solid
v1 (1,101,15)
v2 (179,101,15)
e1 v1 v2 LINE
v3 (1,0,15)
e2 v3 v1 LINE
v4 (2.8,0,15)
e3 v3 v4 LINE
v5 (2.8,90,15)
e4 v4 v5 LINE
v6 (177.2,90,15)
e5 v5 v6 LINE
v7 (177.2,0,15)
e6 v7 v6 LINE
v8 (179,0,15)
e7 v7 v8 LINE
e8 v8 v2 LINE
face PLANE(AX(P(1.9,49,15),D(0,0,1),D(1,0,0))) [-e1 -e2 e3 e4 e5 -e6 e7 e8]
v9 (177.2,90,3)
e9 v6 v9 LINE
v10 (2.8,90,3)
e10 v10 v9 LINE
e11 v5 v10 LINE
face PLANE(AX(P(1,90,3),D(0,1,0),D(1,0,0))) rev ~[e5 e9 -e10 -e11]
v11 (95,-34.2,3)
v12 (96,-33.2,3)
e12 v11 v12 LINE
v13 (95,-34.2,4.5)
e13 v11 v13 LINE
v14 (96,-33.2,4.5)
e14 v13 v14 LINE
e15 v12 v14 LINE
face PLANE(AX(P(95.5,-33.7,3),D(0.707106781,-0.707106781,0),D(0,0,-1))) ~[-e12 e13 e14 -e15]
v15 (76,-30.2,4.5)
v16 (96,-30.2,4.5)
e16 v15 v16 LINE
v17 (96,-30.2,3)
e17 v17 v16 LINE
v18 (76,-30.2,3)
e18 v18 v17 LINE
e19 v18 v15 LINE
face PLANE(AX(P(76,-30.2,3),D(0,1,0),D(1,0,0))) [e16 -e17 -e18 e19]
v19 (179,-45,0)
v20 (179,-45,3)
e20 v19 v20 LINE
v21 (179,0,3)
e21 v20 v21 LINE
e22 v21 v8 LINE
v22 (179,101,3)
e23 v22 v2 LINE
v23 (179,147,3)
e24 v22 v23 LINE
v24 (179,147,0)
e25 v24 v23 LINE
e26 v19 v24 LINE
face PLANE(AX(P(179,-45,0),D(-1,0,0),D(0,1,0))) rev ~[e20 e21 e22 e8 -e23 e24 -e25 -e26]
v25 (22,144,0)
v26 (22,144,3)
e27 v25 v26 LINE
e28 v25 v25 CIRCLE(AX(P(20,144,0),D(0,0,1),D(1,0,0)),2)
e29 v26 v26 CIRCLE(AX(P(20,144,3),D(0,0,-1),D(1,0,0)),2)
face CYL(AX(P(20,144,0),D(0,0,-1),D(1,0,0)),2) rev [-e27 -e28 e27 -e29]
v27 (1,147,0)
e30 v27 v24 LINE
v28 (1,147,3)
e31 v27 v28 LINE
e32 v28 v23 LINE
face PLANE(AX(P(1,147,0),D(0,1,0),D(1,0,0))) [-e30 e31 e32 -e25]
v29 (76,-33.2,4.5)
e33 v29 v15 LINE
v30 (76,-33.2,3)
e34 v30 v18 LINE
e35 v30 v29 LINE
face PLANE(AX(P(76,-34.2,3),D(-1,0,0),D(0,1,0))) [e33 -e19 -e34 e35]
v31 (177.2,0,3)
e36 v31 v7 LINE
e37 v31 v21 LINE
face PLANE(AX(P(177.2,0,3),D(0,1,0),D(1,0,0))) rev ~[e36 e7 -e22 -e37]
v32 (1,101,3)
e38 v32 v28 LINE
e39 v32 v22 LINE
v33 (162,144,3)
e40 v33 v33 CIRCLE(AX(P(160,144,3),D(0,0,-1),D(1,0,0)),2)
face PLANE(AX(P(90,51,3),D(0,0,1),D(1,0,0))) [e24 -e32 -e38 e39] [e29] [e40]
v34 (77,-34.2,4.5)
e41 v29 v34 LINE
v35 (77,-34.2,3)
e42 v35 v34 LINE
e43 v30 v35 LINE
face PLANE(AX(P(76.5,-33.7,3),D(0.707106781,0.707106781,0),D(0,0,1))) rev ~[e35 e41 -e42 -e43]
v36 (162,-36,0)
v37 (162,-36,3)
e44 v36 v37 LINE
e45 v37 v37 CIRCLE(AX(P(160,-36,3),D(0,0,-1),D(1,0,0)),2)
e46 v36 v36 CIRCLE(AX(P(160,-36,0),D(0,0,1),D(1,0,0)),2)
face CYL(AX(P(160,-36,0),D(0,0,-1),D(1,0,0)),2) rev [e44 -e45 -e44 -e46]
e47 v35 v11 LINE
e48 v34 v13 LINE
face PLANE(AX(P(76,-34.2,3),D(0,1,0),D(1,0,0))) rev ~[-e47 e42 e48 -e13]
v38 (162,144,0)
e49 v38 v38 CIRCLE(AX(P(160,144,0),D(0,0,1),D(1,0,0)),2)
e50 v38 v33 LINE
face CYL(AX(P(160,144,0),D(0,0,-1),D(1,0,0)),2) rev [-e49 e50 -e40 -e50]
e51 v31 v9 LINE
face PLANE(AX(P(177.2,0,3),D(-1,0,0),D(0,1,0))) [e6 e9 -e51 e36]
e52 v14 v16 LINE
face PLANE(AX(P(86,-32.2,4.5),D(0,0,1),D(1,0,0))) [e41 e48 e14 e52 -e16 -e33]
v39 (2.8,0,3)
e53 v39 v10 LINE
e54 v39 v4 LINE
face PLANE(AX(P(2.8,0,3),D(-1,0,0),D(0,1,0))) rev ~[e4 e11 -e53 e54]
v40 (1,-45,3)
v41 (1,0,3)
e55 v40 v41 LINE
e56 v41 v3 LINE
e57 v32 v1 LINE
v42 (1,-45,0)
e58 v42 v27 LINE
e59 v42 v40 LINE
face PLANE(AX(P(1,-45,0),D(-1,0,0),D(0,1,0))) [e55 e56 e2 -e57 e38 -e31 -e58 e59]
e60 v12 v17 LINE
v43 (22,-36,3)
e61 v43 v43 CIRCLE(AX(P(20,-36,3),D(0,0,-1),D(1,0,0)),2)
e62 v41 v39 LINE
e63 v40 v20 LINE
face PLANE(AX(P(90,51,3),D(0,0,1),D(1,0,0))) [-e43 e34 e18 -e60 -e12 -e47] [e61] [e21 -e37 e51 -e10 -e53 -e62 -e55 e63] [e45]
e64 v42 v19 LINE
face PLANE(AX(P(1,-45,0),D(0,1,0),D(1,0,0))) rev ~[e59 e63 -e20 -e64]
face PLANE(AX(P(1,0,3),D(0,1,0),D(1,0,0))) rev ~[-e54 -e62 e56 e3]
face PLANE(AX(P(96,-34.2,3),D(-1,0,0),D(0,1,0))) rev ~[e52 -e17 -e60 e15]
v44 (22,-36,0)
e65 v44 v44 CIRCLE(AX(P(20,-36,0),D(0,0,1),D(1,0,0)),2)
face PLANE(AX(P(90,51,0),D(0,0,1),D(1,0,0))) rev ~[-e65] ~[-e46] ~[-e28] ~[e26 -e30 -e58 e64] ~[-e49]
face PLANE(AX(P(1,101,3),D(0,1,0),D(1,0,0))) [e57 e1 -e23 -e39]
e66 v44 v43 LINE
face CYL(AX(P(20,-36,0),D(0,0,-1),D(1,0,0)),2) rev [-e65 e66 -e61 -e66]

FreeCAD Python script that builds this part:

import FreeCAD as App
import Part
import Sketcher

V = App.Vector


def edges_at(feature, points):
    """Names of the edges that pass closest to the given points."""
    edges = feature.Shape.Edges
    near = lambda p: min(range(len(edges)), key=lambda i: edges[i].distToShape(Part.Vertex(*p))[0])
    return sorted({f"Edge{near(p) + 1}" for p in points})

doc = App.newDocument("Part")
params = doc.addObject("Spreadsheet::Sheet", "Params")
for row, (alias, value) in enumerate([
    ("sketch1_diameter", "4 mm"),
    ("pad1_length", "10 mm"),
    ("sketch2_diameter", "4 mm"),
    ("pad2_length", "10 mm"),
    ("sketch3_diameter", "4 mm"),
    ("pad3_length", "10 mm"),
    ("sketch4_diameter", "4 mm"),
    ("pad4_length", "10 mm"),
    ("sketch5_width", "20 mm"),
    ("sketch5_height", "4 mm"),
    ("pad5_length", "1.5 mm"),
    ("chamfer_size", "1 mm"),
    ("sketch6_width", "178 mm"),
    ("sketch6_height", "11 mm"),
    ("pad6_length", "12 mm"),
    ("sketch7_height", "98 mm"),
    ("sketch7_width", "1.8 mm"),
    ("pad7_length", "12 mm"),
    ("sketch8_height", "98 mm"),
    ("sketch8_width", "1.8 mm"),
    ("pad8_length", "12 mm"),
    ("sketch9_width", "178 mm"),
    ("sketch9_height", "192 mm"),
    ("pad9_length", "3 mm"),
], start=1):
    params.set(f"A{row}", alias)
    params.set(f"B{row}", "=" + value)
    params.setAlias(f"B{row}", alias)

body = doc.addObject("PartDesign::Body", "Body")

sketch1 = body.newObject("Sketcher::SketchObject", "Sketch")
sketch1.AttachmentSupport = (doc.getObject("XY_Plane"), [""])
sketch1.MapMode = "FlatFace"
sketch1.addGeometry(Part.Circle(V(20, 144, 0), V(0, 0, 1), 2), False)
sketch1.addConstraint([
    Sketcher.Constraint("Diameter", 0, 4.0),
    Sketcher.Constraint("DistanceX", -1, 1, 0, 3, 20.0),
    Sketcher.Constraint("DistanceY", -1, 1, 0, 3, 144.0),
])
sketch1.setExpression("Constraints[0]", "Params.sketch1_diameter")
pad1 = body.newObject("PartDesign::Pad", "Pad")
pad1.Profile = sketch1
pad1.setExpression("Length", "Params.pad1_length")
body2 = doc.addObject("PartDesign::Body", "Body001")

sketch2 = body2.newObject("Sketcher::SketchObject", "Sketch001")
sketch2.AttachmentSupport = (doc.getObject("XY_Plane001"), [""])
sketch2.MapMode = "FlatFace"
sketch2.addGeometry(Part.Circle(V(160, -36, 0), V(0, 0, 1), 2), False)
sketch2.addConstraint([
    Sketcher.Constraint("Diameter", 0, 4.0),
    Sketcher.Constraint("DistanceX", -1, 1, 0, 3, 160.0),
    Sketcher.Constraint("DistanceY", 0, 3, -1, 1, 36.0),
])
sketch2.setExpression("Constraints[0]", "Params.sketch2_diameter")
pad2 = body2.newObject("PartDesign::Pad", "Pad001")
pad2.Profile = sketch2
pad2.setExpression("Length", "Params.pad2_length")
body3 = doc.addObject("PartDesign::Body", "Body002")

sketch3 = body3.newObject("Sketcher::SketchObject", "Sketch002")
sketch3.AttachmentSupport = (doc.getObject("XY_Plane002"), [""])
sketch3.MapMode = "FlatFace"
sketch3.addGeometry(Part.Circle(V(20, -36, 0), V(0, 0, 1), 2), False)
sketch3.addConstraint([
    Sketcher.Constraint("Diameter", 0, 4.0),
    Sketcher.Constraint("DistanceX", -1, 1, 0, 3, 20.0),
    Sketcher.Constraint("DistanceY", 0, 3, -1, 1, 36.0),
])
sketch3.setExpression("Constraints[0]", "Params.sketch3_diameter")
pad3 = body3.newObject("PartDesign::Pad", "Pad002")
pad3.Profile = sketch3
pad3.setExpression("Length", "Params.pad3_length")
body4 = doc.addObject("PartDesign::Body", "Body003")

sketch4 = body4.newObject("Sketcher::SketchObject", "Sketch003")
sketch4.AttachmentSupport = (doc.getObject("XY_Plane003"), [""])
sketch4.MapMode = "FlatFace"
sketch4.addGeometry(Part.Circle(V(160, 144, 0), V(0, 0, 1), 2), False)
sketch4.addConstraint([
    Sketcher.Constraint("Diameter", 0, 4.0),
    Sketcher.Constraint("DistanceX", -1, 1, 0, 3, 160.0),
    Sketcher.Constraint("DistanceY", -1, 1, 0, 3, 144.0),
])
sketch4.setExpression("Constraints[0]", "Params.sketch4_diameter")
pad4 = body4.newObject("PartDesign::Pad", "Pad003")
pad4.Profile = sketch4
pad4.setExpression("Length", "Params.pad4_length")
body5 = doc.addObject("PartDesign::Body", "Body004")

sketch5 = body5.newObject("Sketcher::SketchObject", "Sketch004")
sketch5.AttachmentSupport = (doc.getObject("XY_Plane004"), [""])
sketch5.MapMode = "FlatFace"
sketch5.AttachmentOffset = App.Placement(V(0, 0, 3), App.Rotation())
sketch5.addGeometry([
    Part.LineSegment(V(76, -30.2, 0), V(76, -34.2, 0)),
    Part.LineSegment(V(76, -34.2, 0), V(96, -34.2, 0)),
    Part.LineSegment(V(96, -34.2, 0), V(96, -30.2, 0)),
    Part.LineSegment(V(96, -30.2, 0), V(76, -30.2, 0)),
], False)
sketch5.addConstraint([
    Sketcher.Constraint("Coincident", 0, 2, 1, 1),
    Sketcher.Constraint("Coincident", 1, 2, 2, 1),
    Sketcher.Constraint("Coincident", 2, 2, 3, 1),
    Sketcher.Constraint("Coincident", 3, 2, 0, 1),
    Sketcher.Constraint("Vertical", 0),
    Sketcher.Constraint("Horizontal", 1),
    Sketcher.Constraint("Vertical", 2),
    Sketcher.Constraint("Horizontal", 3),
    Sketcher.Constraint("DistanceX", 1, 1, 1, 2, 20.0),
    Sketcher.Constraint("DistanceY", 0, 2, 0, 1, 4.0),
    Sketcher.Constraint("DistanceX", -1, 1, 0, 2, 76.0),
    Sketcher.Constraint("DistanceY", 0, 2, -1, 1, 34.2),
])
sketch5.setExpression("Constraints[8]", "Params.sketch5_width")
sketch5.setExpression("Constraints[9]", "Params.sketch5_height")
pad5 = body5.newObject("PartDesign::Pad", "Pad004")
pad5.Profile = sketch5
pad5.setExpression("Length", "Params.pad5_length")
doc.recompute()

chamfer = body5.newObject("PartDesign::Chamfer", "Chamfer")
chamfer.Base = (pad5, edges_at(pad5, [(76, -34.2, 3.75), (96, -34.2, 3.75)]))
chamfer.setExpression("Size", "Params.chamfer_size")
body6 = doc.addObject("PartDesign::Body", "Body005")

sketch6 = body6.newObject("Sketcher::SketchObject", "Sketch005")
sketch6.AttachmentSupport = (doc.getObject("XY_Plane005"), [""])
sketch6.MapMode = "FlatFace"
sketch6.AttachmentOffset = App.Placement(V(0, 0, 3), App.Rotation())
sketch6.addGeometry([
    Part.LineSegment(V(1, 101, 0), V(1, 90, 0)),
    Part.LineSegment(V(1, 90, 0), V(179, 90, 0)),
    Part.LineSegment(V(179, 90, 0), V(179, 101, 0)),
    Part.LineSegment(V(179, 101, 0), V(1, 101, 0)),
], False)
sketch6.addConstraint([
    Sketcher.Constraint("Coincident", 0, 2, 1, 1),
    Sketcher.Constraint("Coincident", 1, 2, 2, 1),
    Sketcher.Constraint("Coincident", 2, 2, 3, 1),
    Sketcher.Constraint("Coincident", 3, 2, 0, 1),
    Sketcher.Constraint("Vertical", 0),
    Sketcher.Constraint("Horizontal", 1),
    Sketcher.Constraint("Vertical", 2),
    Sketcher.Constraint("Horizontal", 3),
    Sketcher.Constraint("DistanceX", 1, 1, 1, 2, 178.0),
    Sketcher.Constraint("DistanceY", 0, 2, 0, 1, 11.0),
    Sketcher.Constraint("DistanceX", -1, 1, 0, 2, 1.0),
    Sketcher.Constraint("DistanceY", -1, 1, 0, 2, 90.0),
])
sketch6.setExpression("Constraints[8]", "Params.sketch6_width")
sketch6.setExpression("Constraints[9]", "Params.sketch6_height")
pad6 = body6.newObject("PartDesign::Pad", "Pad005")
pad6.Profile = sketch6
pad6.setExpression("Length", "Params.pad6_length")
body7 = doc.addObject("PartDesign::Body", "Body006")

sketch7 = body7.newObject("Sketcher::SketchObject", "Sketch006")
sketch7.AttachmentSupport = (doc.getObject("XY_Plane006"), [""])
sketch7.MapMode = "FlatFace"
sketch7.AttachmentOffset = App.Placement(V(0, 0, 3), App.Rotation())
sketch7.addGeometry([
    Part.LineSegment(V(1, 98, 0), V(1, 0, 0)),
    Part.LineSegment(V(1, 0, 0), V(2.8, 0, 0)),
    Part.LineSegment(V(2.8, 0, 0), V(2.8, 98, 0)),
    Part.LineSegment(V(2.8, 98, 0), V(1, 98, 0)),
], False)
sketch7.addConstraint([
    Sketcher.Constraint("Coincident", 0, 2, 1, 1),
    Sketcher.Constraint("Coincident", 1, 2, 2, 1),
    Sketcher.Constraint("Coincident", 2, 2, 3, 1),
    Sketcher.Constraint("Coincident", 3, 2, 0, 1),
    Sketcher.Constraint("Vertical", 0),
    Sketcher.Constraint("Horizontal", 1),
    Sketcher.Constraint("Vertical", 2),
    Sketcher.Constraint("Horizontal", 3),
    Sketcher.Constraint("PointOnObject", 0, 2, -1),
    Sketcher.Constraint("DistanceY", 0, 2, 0, 1, 98.0),
    Sketcher.Constraint("DistanceX", 1, 1, 1, 2, 1.8),
    Sketcher.Constraint("DistanceX", -1, 1, 0, 2, 1.0),
])
sketch7.setExpression("Constraints[9]", "Params.sketch7_height")
sketch7.setExpression("Constraints[10]", "Params.sketch7_width")
pad7 = body7.newObject("PartDesign::Pad", "Pad006")
pad7.Profile = sketch7
pad7.setExpression("Length", "Params.pad7_length")
doc.recompute()

boolean = body7.newObject("PartDesign::Boolean", "Boolean")
boolean.Type = "Fuse"
boolean.addObjects([body6])
body8 = doc.addObject("PartDesign::Body", "Body007")

sketch8 = body8.newObject("Sketcher::SketchObject", "Sketch007")
sketch8.AttachmentSupport = (doc.getObject("XY_Plane007"), [""])
sketch8.MapMode = "FlatFace"
sketch8.AttachmentOffset = App.Placement(V(0, 0, 3), App.Rotation())
sketch8.addGeometry([
    Part.LineSegment(V(177.2, 98, 0), V(177.2, 0, 0)),
    Part.LineSegment(V(177.2, 0, 0), V(179, 0, 0)),
    Part.LineSegment(V(179, 0, 0), V(179, 98, 0)),
    Part.LineSegment(V(179, 98, 0), V(177.2, 98, 0)),
], False)
sketch8.addConstraint([
    Sketcher.Constraint("Coincident", 0, 2, 1, 1),
    Sketcher.Constraint("Coincident", 1, 2, 2, 1),
    Sketcher.Constraint("Coincident", 2, 2, 3, 1),
    Sketcher.Constraint("Coincident", 3, 2, 0, 1),
    Sketcher.Constraint("Vertical", 0),
    Sketcher.Constraint("Horizontal", 1),
    Sketcher.Constraint("Vertical", 2),
    Sketcher.Constraint("Horizontal", 3),
    Sketcher.Constraint("PointOnObject", 0, 2, -1),
    Sketcher.Constraint("DistanceY", 0, 2, 0, 1, 98.0),
    Sketcher.Constraint("DistanceX", 1, 1, 1, 2, 1.8),
    Sketcher.Constraint("DistanceX", -1, 1, 1, 2, 179.0),
])
sketch8.setExpression("Constraints[9]", "Params.sketch8_height")
sketch8.setExpression("Constraints[10]", "Params.sketch8_width")
pad8 = body8.newObject("PartDesign::Pad", "Pad007")
pad8.Profile = sketch8
pad8.setExpression("Length", "Params.pad8_length")
doc.recompute()

boolean2 = body8.newObject("PartDesign::Boolean", "Boolean001")
boolean2.Type = "Fuse"
boolean2.addObjects([body7])
body9 = doc.addObject("PartDesign::Body", "Body008")

sketch9 = body9.newObject("Sketcher::SketchObject", "Sketch008")
sketch9.AttachmentSupport = (doc.getObject("XY_Plane008"), [""])
sketch9.MapMode = "FlatFace"
sketch9.addGeometry([
    Part.LineSegment(V(1, 147, 0), V(1, -45, 0)),
    Part.LineSegment(V(1, -45, 0), V(179, -45, 0)),
    Part.LineSegment(V(179, -45, 0), V(179, 147, 0)),
    Part.LineSegment(V(179, 147, 0), V(1, 147, 0)),
], False)
sketch9.addConstraint([
    Sketcher.Constraint("Coincident", 0, 2, 1, 1),
    Sketcher.Constraint("Coincident", 1, 2, 2, 1),
    Sketcher.Constraint("Coincident", 2, 2, 3, 1),
    Sketcher.Constraint("Coincident", 3, 2, 0, 1),
    Sketcher.Constraint("Vertical", 0),
    Sketcher.Constraint("Horizontal", 1),
    Sketcher.Constraint("Vertical", 2),
    Sketcher.Constraint("Horizontal", 3),
    Sketcher.Constraint("DistanceX", 1, 1, 1, 2, 178.0),
    Sketcher.Constraint("DistanceY", 0, 2, 0, 1, 192.0),
    Sketcher.Constraint("DistanceX", -1, 1, 0, 2, 1.0),
    Sketcher.Constraint("DistanceY", 0, 2, -1, 1, 45.0),
])
sketch9.setExpression("Constraints[8]", "Params.sketch9_width")
sketch9.setExpression("Constraints[9]", "Params.sketch9_height")
pad9 = body9.newObject("PartDesign::Pad", "Pad008")
pad9.Profile = sketch9
pad9.setExpression("Length", "Params.pad9_length")
doc.recompute()

boolean3 = body9.newObject("PartDesign::Boolean", "Boolean002")
boolean3.Type = "Fuse"
boolean3.addObjects([body8])
doc.recompute()

boolean4 = body9.newObject("PartDesign::Boolean", "Boolean003")
boolean4.Type = "Fuse"
boolean4.addObjects([body5])
doc.recompute()

boolean5 = body9.newObject("PartDesign::Boolean", "Boolean004")
boolean5.Type = "Cut"
boolean5.addObjects([body4])
doc.recompute()

boolean6 = body9.newObject("PartDesign::Boolean", "Boolean005")
boolean6.Type = "Cut"
boolean6.addObjects([body3])
doc.recompute()

boolean7 = body9.newObject("PartDesign::Boolean", "Boolean006")
boolean7.Type = "Cut"
boolean7.addObjects([body2])
doc.recompute()

boolean8 = body9.newObject("PartDesign::Boolean", "Boolean007")
boolean8.Type = "Cut"
boolean8.addObjects([body])

doc.recompute()
